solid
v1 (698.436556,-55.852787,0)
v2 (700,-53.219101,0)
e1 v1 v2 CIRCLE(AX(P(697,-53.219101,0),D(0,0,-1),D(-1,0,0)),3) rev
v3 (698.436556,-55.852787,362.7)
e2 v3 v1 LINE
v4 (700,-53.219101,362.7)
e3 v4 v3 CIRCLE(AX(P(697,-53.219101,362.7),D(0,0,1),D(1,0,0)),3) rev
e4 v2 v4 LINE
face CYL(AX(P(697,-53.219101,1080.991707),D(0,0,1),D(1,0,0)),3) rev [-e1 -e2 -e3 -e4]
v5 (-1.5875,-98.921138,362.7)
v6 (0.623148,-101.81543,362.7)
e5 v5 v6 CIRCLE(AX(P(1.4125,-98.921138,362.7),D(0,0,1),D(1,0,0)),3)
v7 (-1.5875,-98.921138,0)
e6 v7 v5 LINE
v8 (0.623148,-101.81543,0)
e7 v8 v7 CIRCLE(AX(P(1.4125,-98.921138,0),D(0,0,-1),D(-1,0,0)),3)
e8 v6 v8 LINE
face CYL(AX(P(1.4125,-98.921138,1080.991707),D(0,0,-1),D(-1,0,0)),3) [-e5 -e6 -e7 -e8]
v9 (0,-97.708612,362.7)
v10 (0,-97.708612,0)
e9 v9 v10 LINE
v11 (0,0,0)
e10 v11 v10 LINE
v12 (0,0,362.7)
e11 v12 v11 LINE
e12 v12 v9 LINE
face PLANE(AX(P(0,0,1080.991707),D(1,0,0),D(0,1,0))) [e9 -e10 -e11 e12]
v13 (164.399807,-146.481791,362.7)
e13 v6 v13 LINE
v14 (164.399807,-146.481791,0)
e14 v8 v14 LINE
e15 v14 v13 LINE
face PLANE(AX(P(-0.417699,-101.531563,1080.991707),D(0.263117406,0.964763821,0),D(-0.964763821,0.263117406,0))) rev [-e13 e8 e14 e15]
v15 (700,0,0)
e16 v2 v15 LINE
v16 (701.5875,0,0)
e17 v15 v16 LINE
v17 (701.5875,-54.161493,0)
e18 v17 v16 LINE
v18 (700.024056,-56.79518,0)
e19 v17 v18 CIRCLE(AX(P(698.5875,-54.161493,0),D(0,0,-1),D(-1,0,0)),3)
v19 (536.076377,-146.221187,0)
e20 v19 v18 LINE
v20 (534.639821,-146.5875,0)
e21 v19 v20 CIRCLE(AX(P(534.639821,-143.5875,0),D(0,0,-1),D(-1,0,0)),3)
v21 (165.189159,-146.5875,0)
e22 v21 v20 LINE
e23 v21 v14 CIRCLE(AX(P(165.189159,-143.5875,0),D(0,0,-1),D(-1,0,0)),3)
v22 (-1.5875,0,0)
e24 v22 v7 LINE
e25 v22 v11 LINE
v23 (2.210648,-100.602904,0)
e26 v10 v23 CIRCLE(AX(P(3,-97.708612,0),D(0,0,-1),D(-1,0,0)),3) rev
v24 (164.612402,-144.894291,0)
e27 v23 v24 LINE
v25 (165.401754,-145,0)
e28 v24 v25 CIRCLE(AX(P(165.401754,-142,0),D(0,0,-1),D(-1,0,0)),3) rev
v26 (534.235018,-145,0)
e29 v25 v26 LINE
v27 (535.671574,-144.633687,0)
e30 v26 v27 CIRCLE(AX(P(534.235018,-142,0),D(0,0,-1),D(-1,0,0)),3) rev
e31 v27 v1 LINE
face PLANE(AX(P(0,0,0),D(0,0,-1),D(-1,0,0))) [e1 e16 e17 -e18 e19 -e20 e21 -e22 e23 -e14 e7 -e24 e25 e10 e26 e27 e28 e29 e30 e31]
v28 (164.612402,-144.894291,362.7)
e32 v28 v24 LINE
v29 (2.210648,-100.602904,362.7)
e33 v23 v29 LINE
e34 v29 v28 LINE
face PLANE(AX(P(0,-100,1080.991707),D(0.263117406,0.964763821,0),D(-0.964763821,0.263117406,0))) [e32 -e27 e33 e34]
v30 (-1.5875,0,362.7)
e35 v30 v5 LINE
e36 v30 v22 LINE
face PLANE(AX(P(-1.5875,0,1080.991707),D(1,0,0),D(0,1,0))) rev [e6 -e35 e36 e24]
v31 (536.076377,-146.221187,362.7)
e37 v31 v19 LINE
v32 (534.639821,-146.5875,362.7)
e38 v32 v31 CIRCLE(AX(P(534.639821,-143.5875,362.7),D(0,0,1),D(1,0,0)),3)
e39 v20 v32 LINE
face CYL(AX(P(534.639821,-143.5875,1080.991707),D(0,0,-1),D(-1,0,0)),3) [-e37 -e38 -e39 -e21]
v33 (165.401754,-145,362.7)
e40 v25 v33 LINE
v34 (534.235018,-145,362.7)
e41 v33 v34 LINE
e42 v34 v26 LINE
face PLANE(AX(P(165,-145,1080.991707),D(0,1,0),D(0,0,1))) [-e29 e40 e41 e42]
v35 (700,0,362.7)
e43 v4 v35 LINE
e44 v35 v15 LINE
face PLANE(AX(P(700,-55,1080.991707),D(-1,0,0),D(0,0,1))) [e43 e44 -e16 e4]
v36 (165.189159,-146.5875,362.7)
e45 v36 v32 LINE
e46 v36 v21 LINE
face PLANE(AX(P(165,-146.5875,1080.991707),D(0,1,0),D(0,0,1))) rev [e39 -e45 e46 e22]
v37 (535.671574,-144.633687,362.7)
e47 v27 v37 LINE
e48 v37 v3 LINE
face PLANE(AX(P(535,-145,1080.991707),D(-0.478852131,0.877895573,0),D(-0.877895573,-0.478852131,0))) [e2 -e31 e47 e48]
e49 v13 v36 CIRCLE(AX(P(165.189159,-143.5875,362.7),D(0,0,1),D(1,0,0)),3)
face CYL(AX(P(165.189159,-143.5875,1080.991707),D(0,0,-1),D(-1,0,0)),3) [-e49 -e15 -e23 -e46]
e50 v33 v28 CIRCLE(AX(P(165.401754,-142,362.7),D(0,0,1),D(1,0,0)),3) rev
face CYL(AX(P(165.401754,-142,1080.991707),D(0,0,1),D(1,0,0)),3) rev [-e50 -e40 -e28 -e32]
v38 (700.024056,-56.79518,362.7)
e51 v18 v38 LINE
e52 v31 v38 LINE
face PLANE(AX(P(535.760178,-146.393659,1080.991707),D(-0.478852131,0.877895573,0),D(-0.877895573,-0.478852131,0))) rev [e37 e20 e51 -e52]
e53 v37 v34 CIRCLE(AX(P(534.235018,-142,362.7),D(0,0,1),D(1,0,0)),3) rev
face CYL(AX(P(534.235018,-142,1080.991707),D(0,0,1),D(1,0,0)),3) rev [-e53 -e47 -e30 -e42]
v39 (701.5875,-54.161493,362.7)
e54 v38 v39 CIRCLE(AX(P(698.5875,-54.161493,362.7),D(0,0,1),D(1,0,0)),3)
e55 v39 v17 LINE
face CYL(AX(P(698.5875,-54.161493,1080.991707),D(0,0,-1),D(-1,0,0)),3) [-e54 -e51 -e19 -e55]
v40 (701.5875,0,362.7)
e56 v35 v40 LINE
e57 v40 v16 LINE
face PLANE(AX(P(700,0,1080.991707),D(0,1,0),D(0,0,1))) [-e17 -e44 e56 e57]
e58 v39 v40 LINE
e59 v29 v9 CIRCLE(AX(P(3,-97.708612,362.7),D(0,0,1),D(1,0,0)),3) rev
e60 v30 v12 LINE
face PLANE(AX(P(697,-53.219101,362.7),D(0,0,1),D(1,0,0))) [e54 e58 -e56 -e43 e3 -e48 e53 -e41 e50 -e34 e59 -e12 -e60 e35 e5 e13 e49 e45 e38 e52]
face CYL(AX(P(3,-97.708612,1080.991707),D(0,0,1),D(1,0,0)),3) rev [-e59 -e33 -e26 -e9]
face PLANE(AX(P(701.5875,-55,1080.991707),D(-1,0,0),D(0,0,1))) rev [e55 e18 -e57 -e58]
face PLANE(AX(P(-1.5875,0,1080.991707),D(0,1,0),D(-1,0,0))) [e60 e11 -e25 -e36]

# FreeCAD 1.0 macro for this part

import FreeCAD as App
import Part
import Sketcher


def edges_at(feature, points):
    """Names of the edges that pass closest to the given points."""
    edges = feature.Shape.Edges
    near = lambda p: min(range(len(edges)), key=lambda i: edges[i].distToShape(Part.Vertex(*p))[0])
    return sorted({f"Edge{near(p) + 1}" for p in points})

doc = App.newDocument("Part")
body = doc.addObject("PartDesign::Body", "Body")

# Sketch on XY plane
sketch1 = body.newObject("Sketcher::SketchObject", "Sketch")
sketch1.AttachmentSupport = (doc.getObject("XY_Plane"), [""])
sketch1.MapMode = "FlatFace"
sketch1.addGeometry(Part.LineSegment(App.Vector(0, -100, 0), App.Vector(0, 0, 0)), False)
sketch1.addGeometry(Part.LineSegment(App.Vector(0, 0, 0), App.Vector(-1.6, 0, 0)), False)
sketch1.addGeometry(Part.LineSegment(App.Vector(-1.6, 0, 0), App.Vector(-1.6, -101.2, 0)), False)
sketch1.addGeometry(Part.LineSegment(App.Vector(-1.6, -101.2, 0), App.Vector(164.8, -146.6, 0)), False)
sketch1.addGeometry(Part.LineSegment(App.Vector(164.8, -146.6, 0), App.Vector(535.4, -146.6, 0)), False)
sketch1.addGeometry(Part.LineSegment(App.Vector(535.4, -146.6, 0), App.Vector(701.6, -55.9, 0)), False)
sketch1.addGeometry(Part.LineSegment(App.Vector(701.6, -55.9, 0), App.Vector(701.6, 0, 0)), False)
sketch1.addGeometry(Part.LineSegment(App.Vector(701.6, 0, 0), App.Vector(700, 0, 0)), False)
sketch1.addGeometry(Part.LineSegment(App.Vector(700, 0, 0), App.Vector(700, -55, 0)), False)
sketch1.addGeometry(Part.LineSegment(App.Vector(700, -55, 0), App.Vector(535, -145, 0)), False)
sketch1.addGeometry(Part.LineSegment(App.Vector(535, -145, 0), App.Vector(165, -145, 0)), False)
sketch1.addGeometry(Part.LineSegment(App.Vector(165, -145, 0), App.Vector(0, -100, 0)), False)
sketch1.addConstraint(Sketcher.Constraint("Coincident", 0, 2, 1, 1))
sketch1.addConstraint(Sketcher.Constraint("Coincident", 1, 2, 2, 1))
sketch1.addConstraint(Sketcher.Constraint("Coincident", 2, 2, 3, 1))
sketch1.addConstraint(Sketcher.Constraint("Coincident", 3, 2, 4, 1))
sketch1.addConstraint(Sketcher.Constraint("Coincident", 4, 2, 5, 1))
sketch1.addConstraint(Sketcher.Constraint("Coincident", 5, 2, 6, 1))
sketch1.addConstraint(Sketcher.Constraint("Coincident", 6, 2, 7, 1))
sketch1.addConstraint(Sketcher.Constraint("Coincident", 7, 2, 8, 1))
sketch1.addConstraint(Sketcher.Constraint("Coincident", 8, 2, 9, 1))
sketch1.addConstraint(Sketcher.Constraint("Coincident", 9, 2, 10, 1))
sketch1.addConstraint(Sketcher.Constraint("Coincident", 10, 2, 11, 1))
sketch1.addConstraint(Sketcher.Constraint("Coincident", 11, 2, 0, 1))
sketch1.addConstraint(Sketcher.Constraint("Vertical", 0))
sketch1.addConstraint(Sketcher.Constraint("Horizontal", 1))
sketch1.addConstraint(Sketcher.Constraint("Vertical", 2))
sketch1.addConstraint(Sketcher.Constraint("Horizontal", 4))
sketch1.addConstraint(Sketcher.Constraint("Vertical", 6))
sketch1.addConstraint(Sketcher.Constraint("Horizontal", 7))
sketch1.addConstraint(Sketcher.Constraint("Vertical", 8))
sketch1.addConstraint(Sketcher.Constraint("Horizontal", 10))
sketch1.addConstraint(Sketcher.Constraint("Coincident", 0, 2, -1, 1))
sketch1.addConstraint(Sketcher.Constraint("PointOnObject", 6, 2, -1))
sketch1.addConstraint(Sketcher.Constraint("Parallel", 5, 9))
sketch1.addConstraint(Sketcher.Constraint("Parallel", 3, 11))
sketch1.addConstraint(Sketcher.Constraint("Equal", 1, 7))
sketch1.addConstraint(Sketcher.Constraint("DistanceX", 10, 2, 10, 1, 370.0))
sketch1.addConstraint(Sketcher.Constraint("DistanceY", 0, 1, 0, 2, 100.0))
sketch1.addConstraint(Sketcher.Constraint("DistanceY", 8, 2, 8, 1, 55.0))
sketch1.addConstraint(Sketcher.Constraint("DistanceX", -1, 1, 7, 2, 700.0))
sketch1.addConstraint(Sketcher.Constraint("DistanceX", -1, 1, 9, 2, 535.0))
sketch1.addConstraint(Sketcher.Constraint("DistanceY", 9, 2, -1, 1, 145.0))
sketch1.addConstraint(Sketcher.Constraint("DistanceX", 1, 2, 1, 1, 1.5875))
sketch1.addConstraint(Sketcher.Constraint("DistanceY", 3, 2, -1, 1, 146.5875))
sketch1.addConstraint(Sketcher.Constraint("DistanceX", 4, 1, 4, 2, 370.617398))
sketch1.addConstraint(Sketcher.Constraint("DistanceY", 2, 2, 2, 1, 101.212526))
pad1 = body.newObject("PartDesign::Pad", "Pad")
pad1.Profile = sketch1
pad1.Length = 362.7
doc.recompute()

fillet = body.newObject("PartDesign::Fillet", "Fillet")
fillet.Base = (pad1, edges_at(pad1, [
    (700, -55, 181.35),
    (535, -145, 181.35),
    (165, -145, 181.35),
    (0, -100, 181.35),
    (-1.587, -101.213, 181.35),
    (164.787, -146.588, 181.35),
    (535.405, -146.588, 181.35),
    (701.587, -55.942, 181.35),
]))
fillet.Radius = 3

doc.recompute()
